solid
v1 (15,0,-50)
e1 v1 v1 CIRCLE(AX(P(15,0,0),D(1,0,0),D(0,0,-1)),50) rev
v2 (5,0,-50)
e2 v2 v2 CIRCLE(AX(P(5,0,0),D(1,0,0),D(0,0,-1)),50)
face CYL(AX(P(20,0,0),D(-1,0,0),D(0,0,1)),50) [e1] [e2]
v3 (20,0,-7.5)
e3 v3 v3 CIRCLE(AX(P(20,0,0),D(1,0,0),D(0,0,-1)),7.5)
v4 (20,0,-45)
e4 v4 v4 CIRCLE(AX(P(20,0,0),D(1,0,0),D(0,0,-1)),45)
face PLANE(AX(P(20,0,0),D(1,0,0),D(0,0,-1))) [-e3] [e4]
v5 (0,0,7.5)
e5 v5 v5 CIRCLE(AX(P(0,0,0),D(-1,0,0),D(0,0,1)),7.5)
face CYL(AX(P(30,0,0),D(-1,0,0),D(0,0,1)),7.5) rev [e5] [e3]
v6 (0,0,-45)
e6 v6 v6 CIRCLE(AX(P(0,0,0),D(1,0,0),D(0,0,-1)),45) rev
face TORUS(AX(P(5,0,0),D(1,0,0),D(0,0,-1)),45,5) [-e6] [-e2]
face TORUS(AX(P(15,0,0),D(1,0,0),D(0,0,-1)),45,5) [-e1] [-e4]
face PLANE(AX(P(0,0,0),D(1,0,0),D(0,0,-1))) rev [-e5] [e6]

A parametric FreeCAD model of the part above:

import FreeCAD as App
import Part
import Sketcher
from FreeCAD import Vector


def edges_at(feature, points):
    """Names of the edges that pass closest to the given points."""
    edges = feature.Shape.Edges
    near = lambda p: min(range(len(edges)), key=lambda i: edges[i].distToShape(Part.Vertex(*p))[0])
    return sorted({f"Edge{near(p) + 1}" for p in points})

doc = App.newDocument("Part")
params = doc.addObject("Spreadsheet::Sheet", "Params")
for row, (alias, value) in enumerate([
    ("sketch1_diameter", "100 mm"),
    ("pad1_length", "20 mm"),
    ("fillet_radius", "5 mm"),
    ("sketch2_diameter", "15 mm"),
    ("pocket1_length", "30 mm"),
], start=1):
    params.set(f"A{row}", alias)
    params.set(f"B{row}", "=" + value)
    params.setAlias(f"B{row}", alias)

body = doc.addObject("PartDesign::Body", "Body")

# Sketch on YZ plane
sketch1 = body.newObject("Sketcher::SketchObject", "Sketch")
sketch1.AttachmentSupport = (doc.getObject("YZ_Plane"), [""])
sketch1.MapMode = "FlatFace"
sketch1.addGeometry(Part.Circle(Vector(0, 0, 0), Vector(0, 0, 1), 50), False)
sketch1.addConstraint([
    Sketcher.Constraint("Coincident", 0, 3, -1, 1),
    Sketcher.Constraint("Diameter", 0, 100.0),
])
sketch1.setExpression("Constraints[1]", "Params.sketch1_diameter")
pad1 = body.newObject("PartDesign::Pad", "Pad")
pad1.Profile = sketch1
pad1.setExpression("Length", "Params.pad1_length")
doc.recompute()

fillet = body.newObject("PartDesign::Fillet", "Fillet")
fillet.Base = (pad1, edges_at(pad1, [(0, 0, 50), (20, 0, 50)]))
fillet.setExpression("Radius", "Params.fillet_radius")

# Sketch on YZ plane
sketch2 = body.newObject("Sketcher::SketchObject", "Sketch001")
sketch2.AttachmentSupport = (doc.getObject("YZ_Plane"), [""])
sketch2.MapMode = "FlatFace"
sketch2.addGeometry(Part.Circle(Vector(0, 0, 0), Vector(0, 0, 1), 8), False)
sketch2.addConstraint([
    Sketcher.Constraint("Coincident", 0, 3, -1, 1),
    Sketcher.Constraint("Diameter", 0, 15.0),
])
sketch2.setExpression("Constraints[1]", "Params.sketch2_diameter")
pocket1 = body.newObject("PartDesign::Pocket", "Pocket")
pocket1.Profile = sketch2
pocket1.setExpression("Length", "Params.pocket1_length")
pocket1.Reversed = True

doc.recompute()
